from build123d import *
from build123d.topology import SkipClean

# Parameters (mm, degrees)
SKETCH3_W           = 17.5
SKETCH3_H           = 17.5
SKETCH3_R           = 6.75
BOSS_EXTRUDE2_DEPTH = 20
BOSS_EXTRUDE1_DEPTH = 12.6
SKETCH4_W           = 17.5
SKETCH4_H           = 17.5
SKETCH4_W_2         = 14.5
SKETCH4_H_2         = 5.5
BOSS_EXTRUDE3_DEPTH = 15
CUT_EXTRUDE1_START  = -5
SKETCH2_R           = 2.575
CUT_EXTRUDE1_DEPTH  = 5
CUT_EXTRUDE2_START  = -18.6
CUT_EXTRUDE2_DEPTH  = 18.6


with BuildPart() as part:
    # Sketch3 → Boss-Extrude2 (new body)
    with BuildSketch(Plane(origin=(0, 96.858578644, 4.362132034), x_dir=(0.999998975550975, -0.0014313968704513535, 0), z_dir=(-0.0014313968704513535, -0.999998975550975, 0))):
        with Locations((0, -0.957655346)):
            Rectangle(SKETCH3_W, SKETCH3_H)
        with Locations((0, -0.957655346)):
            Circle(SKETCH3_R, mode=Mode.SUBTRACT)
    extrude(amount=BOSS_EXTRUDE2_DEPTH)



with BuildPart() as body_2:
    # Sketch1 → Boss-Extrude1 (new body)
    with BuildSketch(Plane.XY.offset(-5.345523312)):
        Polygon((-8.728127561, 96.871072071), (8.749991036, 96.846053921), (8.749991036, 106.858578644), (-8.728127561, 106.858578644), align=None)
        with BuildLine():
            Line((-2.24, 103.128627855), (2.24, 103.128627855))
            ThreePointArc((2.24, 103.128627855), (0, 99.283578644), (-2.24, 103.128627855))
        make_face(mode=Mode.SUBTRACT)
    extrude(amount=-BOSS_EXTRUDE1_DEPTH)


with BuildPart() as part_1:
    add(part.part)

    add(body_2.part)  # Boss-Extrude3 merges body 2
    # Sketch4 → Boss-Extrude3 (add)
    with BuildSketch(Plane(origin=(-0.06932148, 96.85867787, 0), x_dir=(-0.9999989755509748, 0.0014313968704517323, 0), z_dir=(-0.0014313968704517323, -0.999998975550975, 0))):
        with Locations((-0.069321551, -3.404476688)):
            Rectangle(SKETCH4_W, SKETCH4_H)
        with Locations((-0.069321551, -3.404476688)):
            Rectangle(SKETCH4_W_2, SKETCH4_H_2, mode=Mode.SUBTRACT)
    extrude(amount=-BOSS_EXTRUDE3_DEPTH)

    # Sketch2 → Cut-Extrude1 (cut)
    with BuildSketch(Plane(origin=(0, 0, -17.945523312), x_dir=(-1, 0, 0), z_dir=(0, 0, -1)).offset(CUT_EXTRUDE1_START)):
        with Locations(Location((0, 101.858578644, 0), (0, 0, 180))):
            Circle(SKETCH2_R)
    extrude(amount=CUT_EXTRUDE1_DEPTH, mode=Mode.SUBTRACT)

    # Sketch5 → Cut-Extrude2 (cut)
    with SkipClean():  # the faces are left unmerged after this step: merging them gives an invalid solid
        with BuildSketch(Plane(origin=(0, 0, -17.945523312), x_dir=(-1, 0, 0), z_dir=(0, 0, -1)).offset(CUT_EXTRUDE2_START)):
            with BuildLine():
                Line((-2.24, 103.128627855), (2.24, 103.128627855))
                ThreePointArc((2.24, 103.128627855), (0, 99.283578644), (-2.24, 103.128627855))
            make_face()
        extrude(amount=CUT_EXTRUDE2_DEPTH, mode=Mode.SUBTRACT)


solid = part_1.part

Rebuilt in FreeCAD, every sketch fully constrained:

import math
import FreeCAD as App
import Part
import Sketcher

doc = App.newDocument("Part")
body = doc.addObject("PartDesign::Body", "Body")

sketch1 = body.newObject("Sketcher::SketchObject", "Sketch")
sketch1.Placement = App.Placement(App.Vector(0, 96.858579, 4.362132), App.Rotation(App.Vector(0.999998976, -0.001431397, 0), App.Vector(0, 0, 1.000000001), App.Vector(-0.001431397, -0.999998976, 0), "ZXY"))
sketch1.addGeometry([
    Part.LineSegment(App.Vector(-9, 8, 0), App.Vector(-9, -10, 0)),
    Part.LineSegment(App.Vector(-9, -10, 0), App.Vector(9, -10, 0)),
    Part.LineSegment(App.Vector(9, -10, 0), App.Vector(9, 8, 0)),
    Part.LineSegment(App.Vector(9, 8, 0), App.Vector(-9, 8, 0)),
    Part.Circle(App.Vector(0, -1, 0), App.Vector(0, 0, 1), 7),
], False)
sketch1.addConstraint([
    Sketcher.Constraint("Coincident", 0, 2, 1, 1),
    Sketcher.Constraint("Coincident", 1, 2, 2, 1),
    Sketcher.Constraint("Coincident", 2, 2, 3, 1),
    Sketcher.Constraint("Coincident", 3, 2, 0, 1),
    Sketcher.Constraint("Vertical", 0),
    Sketcher.Constraint("Horizontal", 1),
    Sketcher.Constraint("Vertical", 2),
    Sketcher.Constraint("Horizontal", 3),
    Sketcher.Constraint("PointOnObject", 4, 3, -2),
    Sketcher.Constraint("Equal", 3, 0),
    Sketcher.Constraint("Diameter", 4, 13.5),
    Sketcher.Constraint("DistanceX", 1, 1, 1, 2, 17.5),
    Sketcher.Constraint("DistanceX", 0, 2, -1, 1, 8.75),
    Sketcher.Constraint("DistanceY", 0, 2, 4, 3, 8.75),
    Sketcher.Constraint("DistanceY", 4, 3, -1, 1, 0.957655),
])
pad1 = body.newObject("PartDesign::Pad", "Pad")
pad1.Profile = sketch1
pad1.Length = 20
body2 = doc.addObject("PartDesign::Body", "Body001")

sketch2 = body2.newObject("Sketcher::SketchObject", "Sketch001")
sketch2.AttachmentSupport = (doc.getObject("XY_Plane001"), [""])
sketch2.MapMode = "FlatFace"
sketch2.AttachmentOffset = App.Placement(App.Vector(0, 0, -5.345523), App.Rotation())
sketch2.addGeometry([
    Part.LineSegment(App.Vector(-8.7, 96.9, 0), App.Vector(8.7, 96.8, 0)),
    Part.LineSegment(App.Vector(8.7, 96.8, 0), App.Vector(8.7, 106.9, 0)),
    Part.LineSegment(App.Vector(8.7, 106.9, 0), App.Vector(-8.7, 106.9, 0)),
    Part.LineSegment(App.Vector(-8.7, 106.9, 0), App.Vector(-8.7, 96.9, 0)),
    Part.ArcOfCircle(Part.Circle(App.Vector(0, 101.9, 0), App.Vector(0, 0, 1), 2.6), math.radians(150), math.radians(390)),
    Part.LineSegment(App.Vector(-2.2, 103.1, 0), App.Vector(2.2, 103.1, 0)),
], False)
sketch2.addConstraint([
    Sketcher.Constraint("Coincident", 0, 2, 1, 1),
    Sketcher.Constraint("Coincident", 1, 2, 2, 1),
    Sketcher.Constraint("Coincident", 2, 2, 3, 1),
    Sketcher.Constraint("Coincident", 3, 2, 0, 1),
    Sketcher.Constraint("Coincident", 4, 1, 5, 1),
    Sketcher.Constraint("Coincident", 5, 2, 4, 2),
    Sketcher.Constraint("Vertical", 1),
    Sketcher.Constraint("Horizontal", 2),
    Sketcher.Constraint("Vertical", 3),
    Sketcher.Constraint("Horizontal", 5),
    Sketcher.Constraint("PointOnObject", 4, 3, -2),
    Sketcher.Constraint("Radius", 4, 2.575),
    Sketcher.Constraint("DistanceY", 4, 3, 1, 2, 5.0),
    Sketcher.Constraint("DistanceX", 5, 1, 5, 2, 4.48),
    Sketcher.Constraint("DistanceX", 2, 2, 2, 1, 17.478119),
    Sketcher.Constraint("DistanceY", 1, 1, 1, 2, 10.012525),
    Sketcher.Constraint("DistanceY", 3, 2, 3, 1, 9.987507),
    Sketcher.Constraint("DistanceY", -1, 1, 4, 3, 101.858579),
    Sketcher.Constraint("DistanceX", -1, 1, 0, 2, 8.749991),
])
pad2 = body2.newObject("PartDesign::Pad", "Pad001")
pad2.Profile = sketch2
pad2.Length = 12.6
pad2.Reversed = True
body.AllowCompound = True
doc.recompute()

boolean = body.newObject("PartDesign::Boolean", "Boolean")
boolean.Type = "Fuse"
boolean.addObjects([body2])

sketch3 = body.newObject("Sketcher::SketchObject", "Sketch002")
sketch3.Placement = App.Placement(App.Vector(-0.069321, 96.858678, 0), App.Rotation(App.Vector(-0.999998976, 0.001431397, 0), App.Vector(0, 0, -1.000000001), App.Vector(-0.001431397, -0.999998976, 0), "ZXY"))
sketch3.addGeometry([
    Part.LineSegment(App.Vector(-9, 5, 0), App.Vector(-9, -12, 0)),
    Part.LineSegment(App.Vector(-9, -12, 0), App.Vector(9, -12, 0)),
    Part.LineSegment(App.Vector(9, -12, 0), App.Vector(9, 5, 0)),
    Part.LineSegment(App.Vector(9, 5, 0), App.Vector(-9, 5, 0)),
    Part.LineSegment(App.Vector(7, -6, 0), App.Vector(-7, -6, 0)),
    Part.LineSegment(App.Vector(-7, -6, 0), App.Vector(-7, -1, 0)),
    Part.LineSegment(App.Vector(-7, -1, 0), App.Vector(7, -1, 0)),
    Part.LineSegment(App.Vector(7, -1, 0), App.Vector(7, -6, 0)),
], False)
sketch3.addConstraint([
    Sketcher.Constraint("Coincident", 0, 2, 1, 1),
    Sketcher.Constraint("Coincident", 1, 2, 2, 1),
    Sketcher.Constraint("Coincident", 2, 2, 3, 1),
    Sketcher.Constraint("Coincident", 3, 2, 0, 1),
    Sketcher.Constraint("Coincident", 4, 2, 5, 1),
    Sketcher.Constraint("Coincident", 5, 2, 6, 1),
    Sketcher.Constraint("Coincident", 6, 2, 7, 1),
    Sketcher.Constraint("Coincident", 7, 2, 4, 1),
    Sketcher.Constraint("Vertical", 0),
    Sketcher.Constraint("Horizontal", 1),
    Sketcher.Constraint("Vertical", 2),
    Sketcher.Constraint("Horizontal", 3),
    Sketcher.Constraint("Horizontal", 4),
    Sketcher.Constraint("Vertical", 5),
    Sketcher.Constraint("Horizontal", 6),
    Sketcher.Constraint("Vertical", 7),
    Sketcher.Constraint("Equal", 3, 0),
    Sketcher.Constraint("DistanceX", 1, 1, 1, 2, 17.5),
    Sketcher.Constraint("DistanceX", 4, 2, 4, 1, 14.5),
    Sketcher.Constraint("DistanceY", 5, 1, 5, 2, 5.5),
    Sketcher.Constraint("DistanceY", 0, 2, 4, 2, 6.0),
    Sketcher.Constraint("DistanceX", 4, 2, 1, 2, 16.0),
    Sketcher.Constraint("DistanceX", 0, 2, -1, 1, 8.819322),
    Sketcher.Constraint("DistanceY", 0, 2, -1, 1, 12.154477),
])
pad3 = body.newObject("PartDesign::Pad", "Pad002")
pad3.Profile = sketch3
pad3.Length = 15
pad3.Reversed = True

sketch4 = body.newObject("Sketcher::SketchObject", "Sketch003")
sketch4.AttachmentSupport = (doc.getObject("XY_Plane"), [""])
sketch4.MapMode = "FlatFace"
sketch4.AttachmentOffset = App.Placement(App.Vector(0, 0, -12.945523), App.Rotation())
sketch4.addGeometry(Part.Circle(App.Vector(0, 101.9, 0), App.Vector(0, 0, 1), 2.6), False)
sketch4.addConstraint([
    Sketcher.Constraint("PointOnObject", 0, 3, -2),
    Sketcher.Constraint("Diameter", 0, 5.15),
    Sketcher.Constraint("DistanceY", -1, 1, 0, 3, 101.858579),
])
pocket1 = body.newObject("PartDesign::Pocket", "Pocket")
pocket1.Profile = sketch4
pocket1.Length = 5

sketch5 = body.newObject("Sketcher::SketchObject", "Sketch004")
sketch5.AttachmentSupport = (doc.getObject("XY_Plane"), [""])
sketch5.MapMode = "FlatFace"
sketch5.AttachmentOffset = App.Placement(App.Vector(0, 0, 0.654477), App.Rotation())
sketch5.addGeometry([
    Part.LineSegment(App.Vector(-2.2, 103.1, 0), App.Vector(2.2, 103.1, 0)),
    Part.ArcOfCircle(Part.Circle(App.Vector(0, 101.9, 0), App.Vector(0, 0, 1), 2.6), math.radians(150), math.radians(390)),
], False)
sketch5.addConstraint([
    Sketcher.Constraint("Coincident", 0, 1, 1, 1),
    Sketcher.Constraint("Coincident", 1, 2, 0, 2),
    Sketcher.Constraint("Horizontal", 0),
    Sketcher.Constraint("PointOnObject", 1, 3, -2),
    Sketcher.Constraint("Radius", 1, 2.575),
    Sketcher.Constraint("DistanceX", 0, 1, 0, 2, 4.48),
    Sketcher.Constraint("DistanceY", -1, 1, 1, 3, 101.858579),
])
pocket2 = body.newObject("PartDesign::Pocket", "Pocket001")
pocket2.Profile = sketch5
pocket2.Length = 18.6

doc.recompute()
